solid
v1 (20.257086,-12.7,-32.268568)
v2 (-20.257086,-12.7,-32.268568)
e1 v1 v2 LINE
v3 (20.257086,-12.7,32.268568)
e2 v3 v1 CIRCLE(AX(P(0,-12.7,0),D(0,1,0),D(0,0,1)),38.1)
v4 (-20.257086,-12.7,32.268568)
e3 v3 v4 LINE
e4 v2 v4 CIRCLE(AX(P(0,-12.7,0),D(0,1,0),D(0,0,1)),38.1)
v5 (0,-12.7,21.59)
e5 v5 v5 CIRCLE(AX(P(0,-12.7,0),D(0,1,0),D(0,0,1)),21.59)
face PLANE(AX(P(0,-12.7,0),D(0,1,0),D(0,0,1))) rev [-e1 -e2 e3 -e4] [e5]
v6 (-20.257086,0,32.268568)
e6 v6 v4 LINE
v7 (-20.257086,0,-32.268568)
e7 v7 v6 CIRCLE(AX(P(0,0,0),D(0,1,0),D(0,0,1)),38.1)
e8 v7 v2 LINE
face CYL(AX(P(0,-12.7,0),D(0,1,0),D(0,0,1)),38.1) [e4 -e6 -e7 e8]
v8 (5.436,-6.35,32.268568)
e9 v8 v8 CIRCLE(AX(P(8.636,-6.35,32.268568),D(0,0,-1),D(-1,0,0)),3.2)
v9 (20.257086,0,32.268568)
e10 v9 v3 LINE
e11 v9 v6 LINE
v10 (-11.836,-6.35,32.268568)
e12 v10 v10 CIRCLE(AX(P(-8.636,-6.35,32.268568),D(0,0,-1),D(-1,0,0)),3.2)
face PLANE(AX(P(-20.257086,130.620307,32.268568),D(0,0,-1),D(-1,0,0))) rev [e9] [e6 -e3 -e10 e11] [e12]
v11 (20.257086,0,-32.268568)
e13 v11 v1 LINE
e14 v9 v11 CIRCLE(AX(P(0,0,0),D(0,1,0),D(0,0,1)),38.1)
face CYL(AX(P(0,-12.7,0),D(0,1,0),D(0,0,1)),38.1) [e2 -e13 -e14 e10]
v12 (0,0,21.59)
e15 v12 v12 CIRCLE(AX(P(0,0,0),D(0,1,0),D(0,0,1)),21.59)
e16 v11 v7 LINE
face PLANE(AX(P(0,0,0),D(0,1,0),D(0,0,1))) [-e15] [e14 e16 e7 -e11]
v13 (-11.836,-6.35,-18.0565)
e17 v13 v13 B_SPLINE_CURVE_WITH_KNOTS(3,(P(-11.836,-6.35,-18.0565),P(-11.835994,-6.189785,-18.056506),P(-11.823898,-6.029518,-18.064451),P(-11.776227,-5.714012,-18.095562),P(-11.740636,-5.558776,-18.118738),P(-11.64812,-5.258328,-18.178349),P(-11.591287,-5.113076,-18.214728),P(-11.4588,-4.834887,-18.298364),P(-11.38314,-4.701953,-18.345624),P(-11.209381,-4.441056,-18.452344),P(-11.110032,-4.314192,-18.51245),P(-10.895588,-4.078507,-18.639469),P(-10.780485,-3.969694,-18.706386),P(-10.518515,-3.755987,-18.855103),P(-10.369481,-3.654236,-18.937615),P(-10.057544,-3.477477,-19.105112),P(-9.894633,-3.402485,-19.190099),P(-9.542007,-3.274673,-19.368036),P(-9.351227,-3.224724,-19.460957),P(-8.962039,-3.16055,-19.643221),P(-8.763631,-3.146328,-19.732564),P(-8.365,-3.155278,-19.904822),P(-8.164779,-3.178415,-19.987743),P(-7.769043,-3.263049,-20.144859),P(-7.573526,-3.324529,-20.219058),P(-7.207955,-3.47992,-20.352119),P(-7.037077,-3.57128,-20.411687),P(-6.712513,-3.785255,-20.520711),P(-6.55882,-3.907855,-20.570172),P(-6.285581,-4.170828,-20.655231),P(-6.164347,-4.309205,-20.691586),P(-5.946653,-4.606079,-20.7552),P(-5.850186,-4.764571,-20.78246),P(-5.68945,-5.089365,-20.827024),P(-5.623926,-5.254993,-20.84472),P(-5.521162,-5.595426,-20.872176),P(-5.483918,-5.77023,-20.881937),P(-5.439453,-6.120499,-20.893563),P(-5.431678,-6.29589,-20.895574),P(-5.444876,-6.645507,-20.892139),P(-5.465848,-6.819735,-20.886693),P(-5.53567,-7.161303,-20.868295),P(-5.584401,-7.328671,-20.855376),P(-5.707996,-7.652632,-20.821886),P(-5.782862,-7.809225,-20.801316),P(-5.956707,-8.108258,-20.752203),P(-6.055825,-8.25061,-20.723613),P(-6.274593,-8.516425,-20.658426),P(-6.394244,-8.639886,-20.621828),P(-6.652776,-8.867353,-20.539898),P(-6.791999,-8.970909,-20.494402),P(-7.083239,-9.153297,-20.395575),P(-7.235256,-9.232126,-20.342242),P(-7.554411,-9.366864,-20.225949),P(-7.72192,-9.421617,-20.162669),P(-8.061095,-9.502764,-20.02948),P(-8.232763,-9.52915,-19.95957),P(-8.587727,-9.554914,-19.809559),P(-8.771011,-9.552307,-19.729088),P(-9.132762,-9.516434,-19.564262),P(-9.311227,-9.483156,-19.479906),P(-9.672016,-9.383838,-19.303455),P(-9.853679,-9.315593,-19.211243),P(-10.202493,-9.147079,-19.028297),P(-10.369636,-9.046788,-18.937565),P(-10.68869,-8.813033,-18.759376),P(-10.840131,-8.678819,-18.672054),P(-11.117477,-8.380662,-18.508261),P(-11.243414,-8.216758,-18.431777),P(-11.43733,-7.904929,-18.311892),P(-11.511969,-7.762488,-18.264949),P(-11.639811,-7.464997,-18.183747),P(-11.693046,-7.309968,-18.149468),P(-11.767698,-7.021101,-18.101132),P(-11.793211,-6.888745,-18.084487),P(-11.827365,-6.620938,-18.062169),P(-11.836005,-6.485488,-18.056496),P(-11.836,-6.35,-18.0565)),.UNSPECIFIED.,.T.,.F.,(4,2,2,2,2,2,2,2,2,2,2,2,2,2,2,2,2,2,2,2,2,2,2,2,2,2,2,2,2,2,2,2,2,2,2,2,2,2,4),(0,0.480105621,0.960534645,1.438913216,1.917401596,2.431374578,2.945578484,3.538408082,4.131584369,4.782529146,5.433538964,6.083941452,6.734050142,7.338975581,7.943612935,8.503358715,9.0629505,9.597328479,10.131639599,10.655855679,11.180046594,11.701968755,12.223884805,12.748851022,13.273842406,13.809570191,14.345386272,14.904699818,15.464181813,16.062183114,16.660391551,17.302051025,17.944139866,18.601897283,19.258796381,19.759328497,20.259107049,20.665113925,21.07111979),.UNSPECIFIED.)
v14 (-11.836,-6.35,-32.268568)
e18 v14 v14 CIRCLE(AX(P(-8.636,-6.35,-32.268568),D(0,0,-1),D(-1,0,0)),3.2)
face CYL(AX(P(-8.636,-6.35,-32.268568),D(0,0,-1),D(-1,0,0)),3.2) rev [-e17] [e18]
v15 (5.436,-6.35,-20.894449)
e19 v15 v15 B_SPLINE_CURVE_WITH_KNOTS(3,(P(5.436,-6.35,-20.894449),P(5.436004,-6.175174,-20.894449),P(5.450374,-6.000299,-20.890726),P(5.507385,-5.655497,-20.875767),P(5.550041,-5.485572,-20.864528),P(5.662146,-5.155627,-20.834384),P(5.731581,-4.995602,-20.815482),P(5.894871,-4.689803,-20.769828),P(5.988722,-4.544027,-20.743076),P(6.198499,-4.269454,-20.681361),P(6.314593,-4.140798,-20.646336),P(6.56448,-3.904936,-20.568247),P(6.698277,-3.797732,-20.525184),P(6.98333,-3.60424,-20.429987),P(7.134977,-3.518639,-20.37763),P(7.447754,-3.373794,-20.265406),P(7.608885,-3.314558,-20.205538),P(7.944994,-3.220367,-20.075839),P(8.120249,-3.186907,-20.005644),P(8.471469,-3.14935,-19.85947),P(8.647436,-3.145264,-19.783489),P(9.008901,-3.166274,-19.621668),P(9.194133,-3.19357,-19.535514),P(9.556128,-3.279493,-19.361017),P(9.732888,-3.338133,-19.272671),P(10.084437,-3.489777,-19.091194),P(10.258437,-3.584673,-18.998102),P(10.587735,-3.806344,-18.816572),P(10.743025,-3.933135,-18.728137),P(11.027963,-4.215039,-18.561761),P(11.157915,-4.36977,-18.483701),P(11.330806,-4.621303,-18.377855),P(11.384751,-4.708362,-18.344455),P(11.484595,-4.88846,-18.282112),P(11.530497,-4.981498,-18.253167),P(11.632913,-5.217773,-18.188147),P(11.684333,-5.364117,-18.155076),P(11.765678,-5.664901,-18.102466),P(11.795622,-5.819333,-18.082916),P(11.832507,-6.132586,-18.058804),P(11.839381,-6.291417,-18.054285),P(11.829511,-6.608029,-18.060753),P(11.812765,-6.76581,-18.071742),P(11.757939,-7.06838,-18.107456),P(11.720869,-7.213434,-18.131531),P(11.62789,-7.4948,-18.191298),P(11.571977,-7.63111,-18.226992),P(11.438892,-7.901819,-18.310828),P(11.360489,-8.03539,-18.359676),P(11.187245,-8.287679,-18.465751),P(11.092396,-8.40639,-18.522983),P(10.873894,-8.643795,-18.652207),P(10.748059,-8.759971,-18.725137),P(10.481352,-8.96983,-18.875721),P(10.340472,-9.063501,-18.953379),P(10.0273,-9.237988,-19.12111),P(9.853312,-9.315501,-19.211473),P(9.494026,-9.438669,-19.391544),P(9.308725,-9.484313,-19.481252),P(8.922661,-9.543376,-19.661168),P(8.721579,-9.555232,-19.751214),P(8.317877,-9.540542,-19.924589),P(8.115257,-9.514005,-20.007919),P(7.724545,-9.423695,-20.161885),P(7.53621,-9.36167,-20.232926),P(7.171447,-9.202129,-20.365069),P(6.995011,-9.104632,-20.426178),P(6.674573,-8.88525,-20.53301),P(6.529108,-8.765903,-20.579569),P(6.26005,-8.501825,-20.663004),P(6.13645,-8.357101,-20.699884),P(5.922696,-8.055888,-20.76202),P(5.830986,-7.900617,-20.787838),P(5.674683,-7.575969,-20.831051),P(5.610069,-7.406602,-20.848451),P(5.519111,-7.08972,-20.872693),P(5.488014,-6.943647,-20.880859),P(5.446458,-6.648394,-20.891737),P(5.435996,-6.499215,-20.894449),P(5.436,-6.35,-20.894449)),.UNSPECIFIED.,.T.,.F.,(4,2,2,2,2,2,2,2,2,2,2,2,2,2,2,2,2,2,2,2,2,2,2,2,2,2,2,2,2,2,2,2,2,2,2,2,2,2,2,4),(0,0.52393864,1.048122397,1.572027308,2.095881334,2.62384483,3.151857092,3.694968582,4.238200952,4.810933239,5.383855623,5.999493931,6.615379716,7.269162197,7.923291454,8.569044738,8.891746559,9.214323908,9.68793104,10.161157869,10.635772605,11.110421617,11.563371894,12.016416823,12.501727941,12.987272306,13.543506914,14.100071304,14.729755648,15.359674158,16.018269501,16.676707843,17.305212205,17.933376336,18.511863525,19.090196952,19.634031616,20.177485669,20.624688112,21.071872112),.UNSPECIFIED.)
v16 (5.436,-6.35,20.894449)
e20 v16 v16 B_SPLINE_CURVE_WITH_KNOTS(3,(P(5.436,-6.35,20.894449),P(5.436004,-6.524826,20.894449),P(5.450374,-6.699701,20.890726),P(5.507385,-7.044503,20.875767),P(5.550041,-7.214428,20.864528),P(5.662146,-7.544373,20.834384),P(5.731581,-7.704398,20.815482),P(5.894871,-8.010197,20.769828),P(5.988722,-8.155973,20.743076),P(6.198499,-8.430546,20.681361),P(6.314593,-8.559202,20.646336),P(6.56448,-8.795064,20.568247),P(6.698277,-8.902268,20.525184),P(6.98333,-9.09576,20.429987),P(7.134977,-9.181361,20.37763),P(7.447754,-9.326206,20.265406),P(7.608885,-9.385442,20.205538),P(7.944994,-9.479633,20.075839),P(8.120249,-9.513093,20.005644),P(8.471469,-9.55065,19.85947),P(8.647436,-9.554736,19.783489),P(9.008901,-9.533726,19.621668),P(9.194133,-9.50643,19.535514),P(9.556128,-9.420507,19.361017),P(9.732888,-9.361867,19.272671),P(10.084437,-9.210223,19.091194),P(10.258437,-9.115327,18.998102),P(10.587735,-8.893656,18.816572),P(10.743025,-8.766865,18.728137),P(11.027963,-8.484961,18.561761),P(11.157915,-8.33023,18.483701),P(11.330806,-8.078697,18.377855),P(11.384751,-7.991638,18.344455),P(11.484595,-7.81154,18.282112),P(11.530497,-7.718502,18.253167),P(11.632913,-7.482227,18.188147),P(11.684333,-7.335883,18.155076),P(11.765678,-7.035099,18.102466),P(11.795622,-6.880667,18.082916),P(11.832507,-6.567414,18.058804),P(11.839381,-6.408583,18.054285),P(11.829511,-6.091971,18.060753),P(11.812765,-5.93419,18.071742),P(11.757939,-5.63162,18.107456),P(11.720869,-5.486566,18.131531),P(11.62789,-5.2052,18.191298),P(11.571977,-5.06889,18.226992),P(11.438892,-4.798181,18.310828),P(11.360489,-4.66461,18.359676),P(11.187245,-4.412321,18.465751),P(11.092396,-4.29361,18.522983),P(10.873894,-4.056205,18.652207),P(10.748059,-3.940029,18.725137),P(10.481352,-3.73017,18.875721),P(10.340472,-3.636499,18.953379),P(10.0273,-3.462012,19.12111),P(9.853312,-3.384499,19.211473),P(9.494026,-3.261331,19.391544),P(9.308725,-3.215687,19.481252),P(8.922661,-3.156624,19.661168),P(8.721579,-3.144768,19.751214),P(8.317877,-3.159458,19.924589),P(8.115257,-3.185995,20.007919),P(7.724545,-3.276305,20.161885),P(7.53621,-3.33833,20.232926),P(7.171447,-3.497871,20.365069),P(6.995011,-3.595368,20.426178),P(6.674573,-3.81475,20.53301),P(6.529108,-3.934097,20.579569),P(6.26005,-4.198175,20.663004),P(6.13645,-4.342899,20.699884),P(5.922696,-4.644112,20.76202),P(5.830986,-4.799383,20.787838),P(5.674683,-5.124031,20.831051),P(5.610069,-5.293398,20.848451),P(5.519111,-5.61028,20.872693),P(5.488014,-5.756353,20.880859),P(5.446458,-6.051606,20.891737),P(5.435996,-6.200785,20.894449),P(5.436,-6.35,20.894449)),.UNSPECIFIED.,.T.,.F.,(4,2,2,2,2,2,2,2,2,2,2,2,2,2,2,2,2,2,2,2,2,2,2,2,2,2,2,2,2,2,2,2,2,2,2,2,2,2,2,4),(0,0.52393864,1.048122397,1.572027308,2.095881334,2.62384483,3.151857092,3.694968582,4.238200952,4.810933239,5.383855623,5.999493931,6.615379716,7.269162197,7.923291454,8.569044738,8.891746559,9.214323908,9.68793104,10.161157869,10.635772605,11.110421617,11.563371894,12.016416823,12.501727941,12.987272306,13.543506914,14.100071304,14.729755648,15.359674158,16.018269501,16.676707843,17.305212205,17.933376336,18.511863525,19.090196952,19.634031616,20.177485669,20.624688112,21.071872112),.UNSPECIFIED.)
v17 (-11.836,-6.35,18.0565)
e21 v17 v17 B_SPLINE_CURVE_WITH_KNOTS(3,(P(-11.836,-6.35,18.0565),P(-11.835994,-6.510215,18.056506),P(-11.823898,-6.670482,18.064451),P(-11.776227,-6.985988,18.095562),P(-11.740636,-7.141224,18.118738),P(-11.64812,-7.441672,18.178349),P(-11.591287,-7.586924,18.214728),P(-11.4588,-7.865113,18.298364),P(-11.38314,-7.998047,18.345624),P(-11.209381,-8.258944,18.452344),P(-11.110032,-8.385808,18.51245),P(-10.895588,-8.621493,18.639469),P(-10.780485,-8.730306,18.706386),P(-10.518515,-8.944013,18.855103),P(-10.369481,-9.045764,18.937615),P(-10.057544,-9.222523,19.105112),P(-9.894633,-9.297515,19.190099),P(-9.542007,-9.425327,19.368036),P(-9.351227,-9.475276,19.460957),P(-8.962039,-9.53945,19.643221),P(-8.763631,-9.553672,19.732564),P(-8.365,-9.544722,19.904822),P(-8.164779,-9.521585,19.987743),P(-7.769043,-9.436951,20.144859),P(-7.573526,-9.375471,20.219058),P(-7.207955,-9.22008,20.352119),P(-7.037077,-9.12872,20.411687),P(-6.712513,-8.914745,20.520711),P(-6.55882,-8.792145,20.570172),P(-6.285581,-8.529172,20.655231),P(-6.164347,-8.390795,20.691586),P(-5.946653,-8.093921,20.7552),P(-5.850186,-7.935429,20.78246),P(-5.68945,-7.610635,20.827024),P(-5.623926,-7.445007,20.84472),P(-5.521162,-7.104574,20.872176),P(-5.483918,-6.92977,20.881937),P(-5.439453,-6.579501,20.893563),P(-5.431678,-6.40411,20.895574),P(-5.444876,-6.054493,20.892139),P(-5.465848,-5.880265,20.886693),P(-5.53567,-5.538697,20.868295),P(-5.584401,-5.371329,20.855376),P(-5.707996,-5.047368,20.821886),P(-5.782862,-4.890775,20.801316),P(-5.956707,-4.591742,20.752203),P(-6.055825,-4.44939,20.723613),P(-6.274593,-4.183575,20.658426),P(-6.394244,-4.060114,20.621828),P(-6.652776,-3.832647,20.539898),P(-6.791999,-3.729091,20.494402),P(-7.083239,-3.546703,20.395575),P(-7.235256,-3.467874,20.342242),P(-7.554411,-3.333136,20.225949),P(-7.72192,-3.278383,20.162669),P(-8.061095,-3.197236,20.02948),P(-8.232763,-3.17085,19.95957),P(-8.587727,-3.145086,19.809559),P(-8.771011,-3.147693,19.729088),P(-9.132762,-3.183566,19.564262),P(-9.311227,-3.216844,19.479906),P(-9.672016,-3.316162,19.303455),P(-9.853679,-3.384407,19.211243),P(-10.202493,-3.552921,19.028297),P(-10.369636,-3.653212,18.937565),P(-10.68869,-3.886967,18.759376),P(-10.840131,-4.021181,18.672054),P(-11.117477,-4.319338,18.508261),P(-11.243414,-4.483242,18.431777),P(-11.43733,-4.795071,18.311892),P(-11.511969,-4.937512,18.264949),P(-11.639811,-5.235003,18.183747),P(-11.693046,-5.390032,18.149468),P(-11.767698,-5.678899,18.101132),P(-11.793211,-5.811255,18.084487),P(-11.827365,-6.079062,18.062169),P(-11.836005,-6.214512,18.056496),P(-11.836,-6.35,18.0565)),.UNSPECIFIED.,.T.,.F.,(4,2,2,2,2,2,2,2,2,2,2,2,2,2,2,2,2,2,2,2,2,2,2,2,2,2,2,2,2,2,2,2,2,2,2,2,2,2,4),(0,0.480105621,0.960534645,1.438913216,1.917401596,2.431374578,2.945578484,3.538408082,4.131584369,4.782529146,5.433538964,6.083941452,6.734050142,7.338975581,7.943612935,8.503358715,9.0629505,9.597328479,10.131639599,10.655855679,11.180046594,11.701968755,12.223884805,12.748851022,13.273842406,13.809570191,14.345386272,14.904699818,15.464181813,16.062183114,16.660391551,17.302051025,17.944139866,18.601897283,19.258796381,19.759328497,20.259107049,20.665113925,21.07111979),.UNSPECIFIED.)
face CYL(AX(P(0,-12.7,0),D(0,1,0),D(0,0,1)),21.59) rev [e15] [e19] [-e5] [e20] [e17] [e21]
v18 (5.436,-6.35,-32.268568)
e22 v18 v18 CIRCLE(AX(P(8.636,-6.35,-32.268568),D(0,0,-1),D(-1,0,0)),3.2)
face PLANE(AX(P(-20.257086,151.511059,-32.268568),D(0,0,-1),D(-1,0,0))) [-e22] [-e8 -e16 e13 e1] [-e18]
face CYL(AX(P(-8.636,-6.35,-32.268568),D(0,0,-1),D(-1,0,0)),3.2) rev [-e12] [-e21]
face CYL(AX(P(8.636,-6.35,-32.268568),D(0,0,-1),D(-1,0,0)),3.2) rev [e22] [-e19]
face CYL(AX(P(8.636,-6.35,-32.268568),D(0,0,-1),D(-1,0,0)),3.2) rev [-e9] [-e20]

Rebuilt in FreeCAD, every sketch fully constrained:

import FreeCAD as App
import Part
import Sketcher
from FreeCAD import Vector
Q = App.Units.Quantity

doc = App.newDocument("Part")
body = doc.addObject("PartDesign::Body", "Body")

# Sketch on XZ plane
sketch1 = body.newObject("Sketcher::SketchObject", "Sketch")
sketch1.AttachmentSupport = (doc.getObject("XZ_Plane"), [""])
sketch1.MapMode = "FlatFace"
sketch1.addGeometry(Part.Circle(Vector(0, 0, 0), Vector(0, 0, 1), 38), False)
sketch1.addConstraint([
    Sketcher.Constraint("Coincident", 0, 3, -1, 1),
    Sketcher.Constraint("Diameter", 0, Q("3 in")),
])
pad1 = body.newObject("PartDesign::Pad", "Pad")
pad1.Profile = sketch1
pad1.Length = Q("0.5 in")

# Sketch on XZ plane
sketch2 = body.newObject("Sketcher::SketchObject", "Sketch001")
sketch2.AttachmentSupport = (doc.getObject("XZ_Plane"), [""])
sketch2.MapMode = "FlatFace"
sketch2.addGeometry(Part.Circle(Vector(0, 0, 0), Vector(0, 0, 1), 22), False)
sketch2.addConstraint([
    Sketcher.Constraint("Coincident", 0, 3, -1, 1),
    Sketcher.Constraint("Diameter", 0, Q("1.7 in")),
])
pocket1 = body.newObject("PartDesign::Pocket", "Pocket")
pocket1.Profile = sketch2
pocket1.Type = "ThroughAll"
pocket1.Reversed = True

# Sketch on XZ plane
sketch3 = body.newObject("Sketcher::SketchObject", "Sketch002")
sketch3.AttachmentSupport = (doc.getObject("XZ_Plane"), [""])
sketch3.MapMode = "FlatFace"
sketch3.addGeometry([
    Part.LineSegment(Vector(-213, -32, 0), Vector(213, -32, 0)),
    Part.LineSegment(Vector(213, -32, 0), Vector(213, -418, 0)),
    Part.LineSegment(Vector(213, -418, 0), Vector(-213, -418, 0)),
    Part.LineSegment(Vector(-213, -418, 0), Vector(-213, -32, 0)),
], False)
sketch3.addConstraint([
    Sketcher.Constraint("Coincident", 0, 2, 1, 1),
    Sketcher.Constraint("Coincident", 1, 2, 2, 1),
    Sketcher.Constraint("Coincident", 2, 2, 3, 1),
    Sketcher.Constraint("Coincident", 3, 2, 0, 1),
    Sketcher.Constraint("Horizontal", 0),
    Sketcher.Constraint("Vertical", 1),
    Sketcher.Constraint("Horizontal", 2),
    Sketcher.Constraint("Vertical", 3),
    Sketcher.Constraint("DistanceX", 0, 1, 0, 2, 426.186919),
    Sketcher.Constraint("DistanceY", 1, 2, 1, 1, 385.672746),
    Sketcher.Constraint("DistanceX", -1, 1, 0, 2, 213.093459),
    Sketcher.Constraint("DistanceY", 0, 2, -1, 1, 32.268568),
])
pocket2 = body.newObject("PartDesign::Pocket", "Pocket001")
pocket2.Profile = sketch3
pocket2.Type = "ThroughAll"
pocket2.Midplane = True

# Sketch on XZ plane
sketch4 = body.newObject("Sketcher::SketchObject", "Sketch003")
sketch4.AttachmentSupport = (doc.getObject("XZ_Plane"), [""])
sketch4.MapMode = "FlatFace"
sketch4.addGeometry([
    Part.LineSegment(Vector(204, 32, 0), Vector(-204, 32, 0)),
    Part.LineSegment(Vector(-204, 32, 0), Vector(-204, 400, 0)),
    Part.LineSegment(Vector(-204, 400, 0), Vector(204, 400, 0)),
    Part.LineSegment(Vector(204, 400, 0), Vector(204, 32, 0)),
], False)
sketch4.addConstraint([
    Sketcher.Constraint("Coincident", 0, 2, 1, 1),
    Sketcher.Constraint("Coincident", 1, 2, 2, 1),
    Sketcher.Constraint("Coincident", 2, 2, 3, 1),
    Sketcher.Constraint("Coincident", 3, 2, 0, 1),
    Sketcher.Constraint("Horizontal", 0),
    Sketcher.Constraint("Vertical", 1),
    Sketcher.Constraint("Horizontal", 2),
    Sketcher.Constraint("Vertical", 3),
    Sketcher.Constraint("DistanceY", 1, 1, 1, 2, 368.03658),
    Sketcher.Constraint("DistanceX", 0, 2, 0, 1, 408.550753),
    Sketcher.Constraint("DistanceY", -1, 1, 1, 2, 400.305148),
    Sketcher.Constraint("DistanceX", 0, 2, -1, 1, 204.275377),
])
pocket3 = body.newObject("PartDesign::Pocket", "Pocket002")
pocket3.Profile = sketch4
pocket3.Type = "ThroughAll"
pocket3.Midplane = True

# Sketch on XY plane
sketch5 = body.newObject("Sketcher::SketchObject", "Sketch004")
sketch5.AttachmentSupport = (doc.getObject("XY_Plane"), [""])
sketch5.MapMode = "FlatFace"
sketch5.AttachmentOffset = App.Placement(Vector(0, 0, -32.268568), App.Rotation())
sketch5.addGeometry([
    Part.Circle(Vector(8.6, -6.3, 0), Vector(0, 0, 1), 3.2),
    Part.Circle(Vector(-8.6, -6.3, 0), Vector(0, 0, 1), 3.2),
], False)
sketch5.addConstraint([
    Sketcher.Constraint("Equal", 0, 1),
    Sketcher.Constraint("Symmetric", 0, 3, 1, 3, -2),
    Sketcher.Constraint("Diameter", 0, 6.4),
    Sketcher.Constraint("DistanceX", -1, 1, 0, 3, Q("0.34 in")),
    Sketcher.Constraint("DistanceY", 0, 3, -1, 1, Q("0.25 in")),
])
doc.recompute()
hole = body.newObject("PartDesign::Hole", "Hole")
hole.Profile = sketch5
hole.ThreadType = "None"
hole.Diameter = 6.4
hole.DepthType = "ThroughAll"
hole.Reversed = True

doc.recompute()
